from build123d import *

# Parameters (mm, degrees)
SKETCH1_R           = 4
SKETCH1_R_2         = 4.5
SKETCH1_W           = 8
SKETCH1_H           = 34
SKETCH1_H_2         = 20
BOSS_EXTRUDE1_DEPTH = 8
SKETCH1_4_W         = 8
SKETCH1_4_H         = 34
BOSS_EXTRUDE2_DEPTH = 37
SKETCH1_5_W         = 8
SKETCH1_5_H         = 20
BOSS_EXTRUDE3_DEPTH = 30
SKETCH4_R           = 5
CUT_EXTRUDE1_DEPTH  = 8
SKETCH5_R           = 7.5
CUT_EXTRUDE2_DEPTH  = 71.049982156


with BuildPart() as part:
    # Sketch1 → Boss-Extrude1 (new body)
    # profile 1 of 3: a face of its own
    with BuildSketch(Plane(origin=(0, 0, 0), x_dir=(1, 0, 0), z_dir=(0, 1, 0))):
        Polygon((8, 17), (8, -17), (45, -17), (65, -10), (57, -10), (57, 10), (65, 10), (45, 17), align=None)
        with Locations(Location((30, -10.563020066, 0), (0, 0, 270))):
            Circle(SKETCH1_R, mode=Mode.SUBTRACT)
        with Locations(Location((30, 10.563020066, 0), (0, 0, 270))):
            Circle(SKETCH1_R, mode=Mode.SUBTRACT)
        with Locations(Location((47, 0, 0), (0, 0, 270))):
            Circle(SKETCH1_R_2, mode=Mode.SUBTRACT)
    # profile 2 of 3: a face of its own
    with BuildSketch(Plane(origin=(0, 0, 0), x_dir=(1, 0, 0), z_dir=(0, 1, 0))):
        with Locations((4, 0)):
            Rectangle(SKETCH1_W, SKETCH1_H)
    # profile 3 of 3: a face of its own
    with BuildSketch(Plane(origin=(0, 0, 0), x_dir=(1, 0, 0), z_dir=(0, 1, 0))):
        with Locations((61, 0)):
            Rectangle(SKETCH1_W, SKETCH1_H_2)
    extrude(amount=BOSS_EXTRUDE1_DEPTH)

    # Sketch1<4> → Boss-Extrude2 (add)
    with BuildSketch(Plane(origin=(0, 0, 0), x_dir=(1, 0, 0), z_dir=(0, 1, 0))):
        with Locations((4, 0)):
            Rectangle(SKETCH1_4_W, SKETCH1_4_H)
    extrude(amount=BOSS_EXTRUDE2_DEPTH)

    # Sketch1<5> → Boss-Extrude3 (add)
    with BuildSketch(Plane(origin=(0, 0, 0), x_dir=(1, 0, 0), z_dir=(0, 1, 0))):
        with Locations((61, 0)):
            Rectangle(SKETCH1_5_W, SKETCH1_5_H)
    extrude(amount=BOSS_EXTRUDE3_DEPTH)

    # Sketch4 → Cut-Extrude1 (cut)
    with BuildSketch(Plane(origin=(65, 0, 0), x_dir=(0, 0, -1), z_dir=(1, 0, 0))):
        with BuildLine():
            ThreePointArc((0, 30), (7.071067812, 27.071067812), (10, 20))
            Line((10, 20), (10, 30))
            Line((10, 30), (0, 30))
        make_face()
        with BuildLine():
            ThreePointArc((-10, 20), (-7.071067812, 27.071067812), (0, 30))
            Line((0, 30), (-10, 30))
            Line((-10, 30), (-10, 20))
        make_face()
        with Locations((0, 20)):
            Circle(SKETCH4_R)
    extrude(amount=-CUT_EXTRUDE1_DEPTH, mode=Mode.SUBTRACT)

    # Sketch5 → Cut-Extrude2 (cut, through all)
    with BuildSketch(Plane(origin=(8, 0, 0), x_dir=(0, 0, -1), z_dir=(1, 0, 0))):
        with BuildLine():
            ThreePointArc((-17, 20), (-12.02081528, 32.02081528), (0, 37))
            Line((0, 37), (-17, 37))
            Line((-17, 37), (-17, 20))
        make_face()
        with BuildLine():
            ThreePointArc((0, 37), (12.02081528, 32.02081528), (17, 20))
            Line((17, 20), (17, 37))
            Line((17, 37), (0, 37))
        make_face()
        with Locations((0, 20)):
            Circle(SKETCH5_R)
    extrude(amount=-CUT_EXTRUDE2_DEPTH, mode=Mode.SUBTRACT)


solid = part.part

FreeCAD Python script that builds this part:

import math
import FreeCAD as App
import Part
import Sketcher

V = App.Vector
Q = App.Units.Quantity


def add_polygon(sketch, points):
    """Adds a closed chain of lines whose ends are joined by coincident constraints."""
    first, n = sketch.GeometryCount, len(points)
    for a, b in zip(points, points[1:] + points[:1]):
        sketch.addGeometry(Part.LineSegment(App.Vector(*a, 0), App.Vector(*b, 0)), False)
    for i in range(n):
        sketch.addConstraint(Sketcher.Constraint("Coincident", first + i, 2, first + (i + 1) % n, 1))

doc = App.newDocument("Part")
body = doc.addObject("PartDesign::Body", "Body")

sketch1 = doc.addObject("Sketcher::SketchObject", "Sketch")
body.addObject(sketch1)
sketch1.AttachmentSupport = (doc.XZ_Plane, [""])
sketch1.MapMode = "FlatFace"
add_polygon(sketch1, [(45, -17), (0, -17), (0, 17), (45, 17), (65, 10), (65, -10)])
sketch1.addGeometry(Part.Circle(V(30, 10.6, 0), V(0, 0, 1), 4), False)
sketch1.addGeometry(Part.Circle(V(30, -10.6, 0), V(0, 0, 1), 4), False)
sketch1.addGeometry(Part.Circle(V(47, 0, 0), V(0, 0, 1), 4.5), False)
sketch1.addConstraint([
    Sketcher.Constraint("Horizontal", 0),
    Sketcher.Constraint("Vertical", 1),
    Sketcher.Constraint("Horizontal", 2),
    Sketcher.Constraint("Vertical", 4),
    Sketcher.Constraint("Equal", 6, 7),
    Sketcher.Constraint("Symmetric", 0, 2, 1, 2, -1, 1),
    Sketcher.Constraint("Symmetric", 6, 3, 7, 3, -1),
    Sketcher.Constraint("PointOnObject", 8, 3, -1),
    Sketcher.Constraint("Vertical", 2, 2, 5, 2),
    Sketcher.Constraint("Equal", 3, 5),
    Sketcher.Constraint("Diameter", 6, Q("8 mm")),
    Sketcher.Constraint("Diameter", 8, Q("9 mm")),
    Sketcher.Constraint("DistanceX", 0, 2, 0, 1, Q("45 mm")),
    Sketcher.Constraint("DistanceY", 1, 1, 1, 2, Q("34 mm")),
    Sketcher.Constraint("DistanceY", 4, 2, 4, 1, Q("20 mm")),
    Sketcher.Constraint("DistanceX", -1, 1, 6, 3, Q("30 mm")),
    Sketcher.Constraint("DistanceX", -1, 1, 8, 3, Q("47 mm")),
    Sketcher.Constraint("DistanceX", -1, 1, 3, 2, Q("65 mm")),
    Sketcher.Constraint("DistanceY", -1, 1, 6, 3, Q("10.56302 mm")),
])
pad1 = doc.addObject("PartDesign::Pad", "Pad")
body.addObject(pad1)
pad1.Profile = sketch1
pad1.Length = 8
pad1.Reversed = True

sketch2 = doc.addObject("Sketcher::SketchObject", "Sketch001")
body.addObject(sketch2)
sketch2.AttachmentSupport = (doc.XZ_Plane, [""])
sketch2.MapMode = "FlatFace"
add_polygon(sketch2, [(0, -17), (0, 17), (8, 17), (8, -17)])
sketch2.addConstraint([
    Sketcher.Constraint("Vertical", 0),
    Sketcher.Constraint("Horizontal", 1),
    Sketcher.Constraint("Vertical", 2),
    Sketcher.Constraint("Horizontal", 3),
    Sketcher.Constraint("Symmetric", 0, 2, 3, 2, -1, 1),
    Sketcher.Constraint("DistanceX", 1, 1, 1, 2, Q("8 mm")),
    Sketcher.Constraint("DistanceY", 0, 1, 0, 2, Q("34 mm")),
])
pad2 = doc.addObject("PartDesign::Pad", "Pad001")
body.addObject(pad2)
pad2.Profile = sketch2
pad2.Length = 37
pad2.Reversed = True

sketch3 = doc.addObject("Sketcher::SketchObject", "Sketch002")
body.addObject(sketch3)
sketch3.AttachmentSupport = (doc.XZ_Plane, [""])
sketch3.MapMode = "FlatFace"
add_polygon(sketch3, [(57, -10), (57, 10), (65, 10), (65, -10)])
sketch3.addConstraint([
    Sketcher.Constraint("Vertical", 0),
    Sketcher.Constraint("Horizontal", 1),
    Sketcher.Constraint("Vertical", 2),
    Sketcher.Constraint("Horizontal", 3),
    Sketcher.Constraint("DistanceX", 1, 1, 1, 2, Q("8 mm")),
    Sketcher.Constraint("DistanceY", 0, 1, 0, 2, Q("20 mm")),
    Sketcher.Constraint("DistanceX", -1, 1, 0, 2, Q("57 mm")),
    Sketcher.Constraint("DistanceY", -1, 1, 0, 2, Q("10 mm")),
])
pad3 = doc.addObject("PartDesign::Pad", "Pad002")
body.addObject(pad3)
pad3.Profile = sketch3
pad3.Length = 30
pad3.Reversed = True

sketch4 = doc.addObject("Sketcher::SketchObject", "Sketch003")
body.addObject(sketch4)
sketch4.AttachmentSupport = (doc.YZ_Plane, [""])
sketch4.MapMode = "FlatFace"
sketch4.AttachmentOffset = App.Placement(V(0, 0, 65), App.Rotation())
sketch4.addGeometry([
    Part.ArcOfCircle(Part.Circle(V(20, 0, 0), V(0, 0, 1), 10), math.radians(-90), math.radians(0)),
    Part.LineSegment(V(20, -10, 0), V(30, -10, 0)),
    Part.LineSegment(V(30, -10, 0), V(30, 0, 0)),
    Part.ArcOfCircle(Part.Circle(V(20, 0, 0), V(0, 0, 1), 10), math.radians(0), math.radians(90)),
    Part.LineSegment(V(30, 0, 0), V(30, 10, 0)),
    Part.LineSegment(V(30, 10, 0), V(20, 10, 0)),
    Part.Circle(V(20, 0, 0), V(0, 0, 1), 5),
], False)
sketch4.addConstraint([
    Sketcher.Constraint("Tangent", 0, 1, 1, 1),
    Sketcher.Constraint("Coincident", 1, 2, 2, 1),
    Sketcher.Constraint("Tangent", 2, 2, 0, 2),
    Sketcher.Constraint("Tangent", 3, 1, 4, 1),
    Sketcher.Constraint("Coincident", 4, 2, 5, 1),
    Sketcher.Constraint("Tangent", 5, 2, 3, 2),
    Sketcher.Constraint("Horizontal", 1),
    Sketcher.Constraint("Vertical", 2),
    Sketcher.Constraint("Vertical", 4),
    Sketcher.Constraint("Horizontal", 5),
    Sketcher.Constraint("Coincident", 3, 3, 0, 3),
    Sketcher.Constraint("Coincident", 6, 3, 0, 3),
    Sketcher.Constraint("Equal", 0, 3),
    Sketcher.Constraint("PointOnObject", 0, 3, -1),
    Sketcher.Constraint("Diameter", 6, Q("10 mm")),
    Sketcher.Constraint("Radius", 0, Q("10 mm")),
    Sketcher.Constraint("DistanceX", -1, 1, 0, 3, Q("20 mm")),
])
pocket1 = doc.addObject("PartDesign::Pocket", "Pocket")
body.addObject(pocket1)
pocket1.Profile = sketch4
pocket1.Length = 8

sketch5 = doc.addObject("Sketcher::SketchObject", "Sketch004")
body.addObject(sketch5)
sketch5.AttachmentSupport = (doc.YZ_Plane, [""])
sketch5.MapMode = "FlatFace"
sketch5.AttachmentOffset = App.Placement(V(0, 0, 8), App.Rotation())
sketch5.addGeometry([
    Part.ArcOfCircle(Part.Circle(V(20, 0, 0), V(0, 0, 1), 17), math.radians(0), math.radians(90)),
    Part.LineSegment(V(37, 0, 0), V(37, 17, 0)),
    Part.LineSegment(V(37, 17, 0), V(20, 17, 0)),
    Part.ArcOfCircle(Part.Circle(V(20, 0, 0), V(0, 0, 1), 17), math.radians(-90), math.radians(0)),
    Part.LineSegment(V(20, -17, 0), V(37, -17, 0)),
    Part.LineSegment(V(37, -17, 0), V(37, 0, 0)),
    Part.Circle(V(20, 0, 0), V(0, 0, 1), 8),
], False)
sketch5.addConstraint([
    Sketcher.Constraint("Tangent", 0, 1, 1, 1),
    Sketcher.Constraint("Coincident", 1, 2, 2, 1),
    Sketcher.Constraint("Tangent", 2, 2, 0, 2),
    Sketcher.Constraint("Tangent", 3, 1, 4, 1),
    Sketcher.Constraint("Coincident", 4, 2, 5, 1),
    Sketcher.Constraint("Tangent", 5, 2, 3, 2),
    Sketcher.Constraint("Vertical", 1),
    Sketcher.Constraint("Horizontal", 2),
    Sketcher.Constraint("Horizontal", 4),
    Sketcher.Constraint("Vertical", 5),
    Sketcher.Constraint("Coincident", 3, 3, 0, 3),
    Sketcher.Constraint("Coincident", 6, 3, 0, 3),
    Sketcher.Constraint("Equal", 0, 3),
    Sketcher.Constraint("PointOnObject", 0, 3, -1),
    Sketcher.Constraint("Diameter", 6, Q("15 mm")),
    Sketcher.Constraint("Radius", 0, Q("17 mm")),
    Sketcher.Constraint("DistanceX", -1, 1, 0, 3, Q("20 mm")),
])
pocket2 = doc.addObject("PartDesign::Pocket", "Pocket001")
body.addObject(pocket2)
pocket2.Profile = sketch5
pocket2.Type = "ThroughAll"

doc.recompute()
